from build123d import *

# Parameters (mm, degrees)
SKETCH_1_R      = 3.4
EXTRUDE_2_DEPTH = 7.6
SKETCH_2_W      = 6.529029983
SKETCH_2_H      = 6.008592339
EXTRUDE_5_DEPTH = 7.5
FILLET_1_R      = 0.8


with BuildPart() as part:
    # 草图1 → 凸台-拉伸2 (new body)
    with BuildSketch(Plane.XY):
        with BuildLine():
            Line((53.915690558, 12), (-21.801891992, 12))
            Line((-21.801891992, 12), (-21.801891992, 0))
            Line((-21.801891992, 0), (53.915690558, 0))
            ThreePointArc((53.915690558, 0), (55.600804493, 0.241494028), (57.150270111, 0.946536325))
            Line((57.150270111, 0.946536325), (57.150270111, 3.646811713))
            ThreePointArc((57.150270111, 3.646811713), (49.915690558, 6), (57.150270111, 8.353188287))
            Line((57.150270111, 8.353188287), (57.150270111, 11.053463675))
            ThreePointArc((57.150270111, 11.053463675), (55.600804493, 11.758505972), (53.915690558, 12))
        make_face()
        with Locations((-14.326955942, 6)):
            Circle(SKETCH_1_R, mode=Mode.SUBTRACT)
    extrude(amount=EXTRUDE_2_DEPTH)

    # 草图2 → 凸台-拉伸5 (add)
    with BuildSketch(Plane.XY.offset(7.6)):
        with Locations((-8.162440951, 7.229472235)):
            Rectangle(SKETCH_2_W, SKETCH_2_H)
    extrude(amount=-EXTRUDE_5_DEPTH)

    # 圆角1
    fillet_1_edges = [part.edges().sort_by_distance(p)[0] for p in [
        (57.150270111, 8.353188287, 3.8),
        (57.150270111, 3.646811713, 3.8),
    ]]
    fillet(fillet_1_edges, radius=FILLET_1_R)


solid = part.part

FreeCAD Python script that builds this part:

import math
import FreeCAD as App
import Part
import Sketcher
from FreeCAD import Vector
Q = App.Units.Quantity


def edges_at(feature, points):
    """Names of the edges that pass closest to the given points."""
    edges = feature.Shape.Edges
    near = lambda p: min(range(len(edges)), key=lambda i: edges[i].distToShape(Part.Vertex(*p))[0])
    return sorted({f"Edge{near(p) + 1}" for p in points})

doc = App.newDocument("Part")
body = doc.addObject("PartDesign::Body", "Body")

# Sketch on XY plane
sketch1 = doc.addObject("Sketcher::SketchObject", "Sketch")
body.addObject(sketch1)
sketch1.AttachmentSupport = (doc.XY_Plane, [""])
sketch1.MapMode = "FlatFace"
sketch1.addGeometry(Part.LineSegment(Vector(53.915691, 12, 0), Vector(-21.801892, 12, 0)), False)
sketch1.addGeometry(Part.LineSegment(Vector(-21.801892, 12, 0), Vector(-21.801892, 0, 0)), False)
sketch1.addGeometry(Part.LineSegment(Vector(-21.801892, 0, 0), Vector(53.915691, 0, 0)), False)
sketch1.addGeometry(Part.ArcOfCircle(Part.Circle(Vector(53.915691, 6, 0), Vector(0, 0, 1), 6), math.radians(-90), math.radians(-57.377839)), False)
sketch1.addGeometry(Part.LineSegment(Vector(57.15027, 0.946536, 0), Vector(57.15027, 3.646812, 0)), False)
sketch1.addGeometry(Part.ArcOfCircle(Part.Circle(Vector(53.915691, 6, 0), Vector(0, 0, 1), 4), math.radians(36.036256), math.radians(323.963744)), False)
sketch1.addGeometry(Part.LineSegment(Vector(57.15027, 8.353188, 0), Vector(57.15027, 11.053464, 0)), False)
sketch1.addGeometry(Part.ArcOfCircle(Part.Circle(Vector(53.915691, 6, 0), Vector(0, 0, 1), 6), math.radians(57.377839), math.radians(90)), False)
sketch1.addGeometry(Part.Circle(Vector(-14.326956, 6, 0), Vector(0, 0, 1), 3.4), False)
sketch1.addConstraint(Sketcher.Constraint("Coincident", 0, 2, 1, 1))
sketch1.addConstraint(Sketcher.Constraint("Coincident", 1, 2, 2, 1))
sketch1.addConstraint(Sketcher.Constraint("Tangent", 2, 2, 3, 1))
sketch1.addConstraint(Sketcher.Constraint("Coincident", 3, 2, 4, 1))
sketch1.addConstraint(Sketcher.Constraint("Coincident", 4, 2, 5, 2))
sketch1.addConstraint(Sketcher.Constraint("Coincident", 5, 1, 6, 1))
sketch1.addConstraint(Sketcher.Constraint("Coincident", 6, 2, 7, 1))
sketch1.addConstraint(Sketcher.Constraint("Tangent", 7, 2, 0, 1))
sketch1.addConstraint(Sketcher.Constraint("Horizontal", 0))
sketch1.addConstraint(Sketcher.Constraint("Vertical", 1))
sketch1.addConstraint(Sketcher.Constraint("Horizontal", 2))
sketch1.addConstraint(Sketcher.Constraint("Vertical", 4))
sketch1.addConstraint(Sketcher.Constraint("Vertical", 6))
sketch1.addConstraint(Sketcher.Constraint("Coincident", 5, 3, 3, 3))
sketch1.addConstraint(Sketcher.Constraint("Coincident", 7, 3, 3, 3))
sketch1.addConstraint(Sketcher.Constraint("Equal", 3, 7))
sketch1.addConstraint(Sketcher.Constraint("PointOnObject", 1, 2, -1))
sketch1.addConstraint(Sketcher.Constraint("Horizontal", 7, 3, 8, 3))
sketch1.addConstraint(Sketcher.Constraint("Vertical", 4, 2, 5, 1))
sketch1.addConstraint(Sketcher.Constraint("Radius", 3, Q("6 mm")))
sketch1.addConstraint(Sketcher.Constraint("Radius", 5, Q("4 mm")))
sketch1.addConstraint(Sketcher.Constraint("Diameter", 8, Q("6.8 mm")))
sketch1.addConstraint(Sketcher.Constraint("DistanceX", 0, 2, 0, 1, Q("75.717583 mm")))
sketch1.addConstraint(Sketcher.Constraint("DistanceY", 4, 1, 4, 2, Q("2.700275 mm")))
sketch1.addConstraint(Sketcher.Constraint("DistanceX", -1, 1, 3, 3, Q("53.915691 mm")))
sketch1.addConstraint(Sketcher.Constraint("DistanceX", 8, 3, -1, 1, Q("14.326956 mm")))
pad1 = doc.addObject("PartDesign::Pad", "Pad")
body.addObject(pad1)
pad1.Profile = sketch1
pad1.Length = 7.6

# Sketch on XY plane
sketch2 = doc.addObject("Sketcher::SketchObject", "Sketch001")
body.addObject(sketch2)
sketch2.AttachmentSupport = (doc.XY_Plane, [""])
sketch2.MapMode = "FlatFace"
sketch2.AttachmentOffset = App.Placement(Vector(0, 0, 7.6), App.Rotation())
sketch2.addGeometry(Part.LineSegment(Vector(-11.426956, 10.233768, 0), Vector(-11.426956, 4.225176, 0)), False)
sketch2.addGeometry(Part.LineSegment(Vector(-11.426956, 4.225176, 0), Vector(-4.897926, 4.225176, 0)), False)
sketch2.addGeometry(Part.LineSegment(Vector(-4.897926, 4.225176, 0), Vector(-4.897926, 10.233768, 0)), False)
sketch2.addGeometry(Part.LineSegment(Vector(-4.897926, 10.233768, 0), Vector(-11.426956, 10.233768, 0)), False)
sketch2.addConstraint(Sketcher.Constraint("Coincident", 0, 2, 1, 1))
sketch2.addConstraint(Sketcher.Constraint("Coincident", 1, 2, 2, 1))
sketch2.addConstraint(Sketcher.Constraint("Coincident", 2, 2, 3, 1))
sketch2.addConstraint(Sketcher.Constraint("Coincident", 3, 2, 0, 1))
sketch2.addConstraint(Sketcher.Constraint("Vertical", 0))
sketch2.addConstraint(Sketcher.Constraint("Horizontal", 1))
sketch2.addConstraint(Sketcher.Constraint("Vertical", 2))
sketch2.addConstraint(Sketcher.Constraint("Horizontal", 3))
sketch2.addConstraint(Sketcher.Constraint("DistanceX", 1, 1, 1, 2, Q("6.52903 mm")))
sketch2.addConstraint(Sketcher.Constraint("DistanceY", 0, 2, 0, 1, Q("6.008592 mm")))
sketch2.addConstraint(Sketcher.Constraint("DistanceY", -1, 1, 2, 2, Q("10.233768 mm")))
sketch2.addConstraint(Sketcher.Constraint("DistanceX", 0, 2, -1, 1, Q("11.426956 mm")))
pad2 = doc.addObject("PartDesign::Pad", "Pad001")
body.addObject(pad2)
pad2.Profile = sketch2
pad2.Length = 7.5
pad2.Reversed = True
doc.recompute()

fillet = doc.addObject("PartDesign::Fillet", "Fillet")
body.addObject(fillet)
fillet.Base = (pad2, edges_at(pad2, [(57.15, 8.353, 3.8), (57.15, 3.647, 3.8)]))
fillet.Radius = 0.8

doc.recompute()
